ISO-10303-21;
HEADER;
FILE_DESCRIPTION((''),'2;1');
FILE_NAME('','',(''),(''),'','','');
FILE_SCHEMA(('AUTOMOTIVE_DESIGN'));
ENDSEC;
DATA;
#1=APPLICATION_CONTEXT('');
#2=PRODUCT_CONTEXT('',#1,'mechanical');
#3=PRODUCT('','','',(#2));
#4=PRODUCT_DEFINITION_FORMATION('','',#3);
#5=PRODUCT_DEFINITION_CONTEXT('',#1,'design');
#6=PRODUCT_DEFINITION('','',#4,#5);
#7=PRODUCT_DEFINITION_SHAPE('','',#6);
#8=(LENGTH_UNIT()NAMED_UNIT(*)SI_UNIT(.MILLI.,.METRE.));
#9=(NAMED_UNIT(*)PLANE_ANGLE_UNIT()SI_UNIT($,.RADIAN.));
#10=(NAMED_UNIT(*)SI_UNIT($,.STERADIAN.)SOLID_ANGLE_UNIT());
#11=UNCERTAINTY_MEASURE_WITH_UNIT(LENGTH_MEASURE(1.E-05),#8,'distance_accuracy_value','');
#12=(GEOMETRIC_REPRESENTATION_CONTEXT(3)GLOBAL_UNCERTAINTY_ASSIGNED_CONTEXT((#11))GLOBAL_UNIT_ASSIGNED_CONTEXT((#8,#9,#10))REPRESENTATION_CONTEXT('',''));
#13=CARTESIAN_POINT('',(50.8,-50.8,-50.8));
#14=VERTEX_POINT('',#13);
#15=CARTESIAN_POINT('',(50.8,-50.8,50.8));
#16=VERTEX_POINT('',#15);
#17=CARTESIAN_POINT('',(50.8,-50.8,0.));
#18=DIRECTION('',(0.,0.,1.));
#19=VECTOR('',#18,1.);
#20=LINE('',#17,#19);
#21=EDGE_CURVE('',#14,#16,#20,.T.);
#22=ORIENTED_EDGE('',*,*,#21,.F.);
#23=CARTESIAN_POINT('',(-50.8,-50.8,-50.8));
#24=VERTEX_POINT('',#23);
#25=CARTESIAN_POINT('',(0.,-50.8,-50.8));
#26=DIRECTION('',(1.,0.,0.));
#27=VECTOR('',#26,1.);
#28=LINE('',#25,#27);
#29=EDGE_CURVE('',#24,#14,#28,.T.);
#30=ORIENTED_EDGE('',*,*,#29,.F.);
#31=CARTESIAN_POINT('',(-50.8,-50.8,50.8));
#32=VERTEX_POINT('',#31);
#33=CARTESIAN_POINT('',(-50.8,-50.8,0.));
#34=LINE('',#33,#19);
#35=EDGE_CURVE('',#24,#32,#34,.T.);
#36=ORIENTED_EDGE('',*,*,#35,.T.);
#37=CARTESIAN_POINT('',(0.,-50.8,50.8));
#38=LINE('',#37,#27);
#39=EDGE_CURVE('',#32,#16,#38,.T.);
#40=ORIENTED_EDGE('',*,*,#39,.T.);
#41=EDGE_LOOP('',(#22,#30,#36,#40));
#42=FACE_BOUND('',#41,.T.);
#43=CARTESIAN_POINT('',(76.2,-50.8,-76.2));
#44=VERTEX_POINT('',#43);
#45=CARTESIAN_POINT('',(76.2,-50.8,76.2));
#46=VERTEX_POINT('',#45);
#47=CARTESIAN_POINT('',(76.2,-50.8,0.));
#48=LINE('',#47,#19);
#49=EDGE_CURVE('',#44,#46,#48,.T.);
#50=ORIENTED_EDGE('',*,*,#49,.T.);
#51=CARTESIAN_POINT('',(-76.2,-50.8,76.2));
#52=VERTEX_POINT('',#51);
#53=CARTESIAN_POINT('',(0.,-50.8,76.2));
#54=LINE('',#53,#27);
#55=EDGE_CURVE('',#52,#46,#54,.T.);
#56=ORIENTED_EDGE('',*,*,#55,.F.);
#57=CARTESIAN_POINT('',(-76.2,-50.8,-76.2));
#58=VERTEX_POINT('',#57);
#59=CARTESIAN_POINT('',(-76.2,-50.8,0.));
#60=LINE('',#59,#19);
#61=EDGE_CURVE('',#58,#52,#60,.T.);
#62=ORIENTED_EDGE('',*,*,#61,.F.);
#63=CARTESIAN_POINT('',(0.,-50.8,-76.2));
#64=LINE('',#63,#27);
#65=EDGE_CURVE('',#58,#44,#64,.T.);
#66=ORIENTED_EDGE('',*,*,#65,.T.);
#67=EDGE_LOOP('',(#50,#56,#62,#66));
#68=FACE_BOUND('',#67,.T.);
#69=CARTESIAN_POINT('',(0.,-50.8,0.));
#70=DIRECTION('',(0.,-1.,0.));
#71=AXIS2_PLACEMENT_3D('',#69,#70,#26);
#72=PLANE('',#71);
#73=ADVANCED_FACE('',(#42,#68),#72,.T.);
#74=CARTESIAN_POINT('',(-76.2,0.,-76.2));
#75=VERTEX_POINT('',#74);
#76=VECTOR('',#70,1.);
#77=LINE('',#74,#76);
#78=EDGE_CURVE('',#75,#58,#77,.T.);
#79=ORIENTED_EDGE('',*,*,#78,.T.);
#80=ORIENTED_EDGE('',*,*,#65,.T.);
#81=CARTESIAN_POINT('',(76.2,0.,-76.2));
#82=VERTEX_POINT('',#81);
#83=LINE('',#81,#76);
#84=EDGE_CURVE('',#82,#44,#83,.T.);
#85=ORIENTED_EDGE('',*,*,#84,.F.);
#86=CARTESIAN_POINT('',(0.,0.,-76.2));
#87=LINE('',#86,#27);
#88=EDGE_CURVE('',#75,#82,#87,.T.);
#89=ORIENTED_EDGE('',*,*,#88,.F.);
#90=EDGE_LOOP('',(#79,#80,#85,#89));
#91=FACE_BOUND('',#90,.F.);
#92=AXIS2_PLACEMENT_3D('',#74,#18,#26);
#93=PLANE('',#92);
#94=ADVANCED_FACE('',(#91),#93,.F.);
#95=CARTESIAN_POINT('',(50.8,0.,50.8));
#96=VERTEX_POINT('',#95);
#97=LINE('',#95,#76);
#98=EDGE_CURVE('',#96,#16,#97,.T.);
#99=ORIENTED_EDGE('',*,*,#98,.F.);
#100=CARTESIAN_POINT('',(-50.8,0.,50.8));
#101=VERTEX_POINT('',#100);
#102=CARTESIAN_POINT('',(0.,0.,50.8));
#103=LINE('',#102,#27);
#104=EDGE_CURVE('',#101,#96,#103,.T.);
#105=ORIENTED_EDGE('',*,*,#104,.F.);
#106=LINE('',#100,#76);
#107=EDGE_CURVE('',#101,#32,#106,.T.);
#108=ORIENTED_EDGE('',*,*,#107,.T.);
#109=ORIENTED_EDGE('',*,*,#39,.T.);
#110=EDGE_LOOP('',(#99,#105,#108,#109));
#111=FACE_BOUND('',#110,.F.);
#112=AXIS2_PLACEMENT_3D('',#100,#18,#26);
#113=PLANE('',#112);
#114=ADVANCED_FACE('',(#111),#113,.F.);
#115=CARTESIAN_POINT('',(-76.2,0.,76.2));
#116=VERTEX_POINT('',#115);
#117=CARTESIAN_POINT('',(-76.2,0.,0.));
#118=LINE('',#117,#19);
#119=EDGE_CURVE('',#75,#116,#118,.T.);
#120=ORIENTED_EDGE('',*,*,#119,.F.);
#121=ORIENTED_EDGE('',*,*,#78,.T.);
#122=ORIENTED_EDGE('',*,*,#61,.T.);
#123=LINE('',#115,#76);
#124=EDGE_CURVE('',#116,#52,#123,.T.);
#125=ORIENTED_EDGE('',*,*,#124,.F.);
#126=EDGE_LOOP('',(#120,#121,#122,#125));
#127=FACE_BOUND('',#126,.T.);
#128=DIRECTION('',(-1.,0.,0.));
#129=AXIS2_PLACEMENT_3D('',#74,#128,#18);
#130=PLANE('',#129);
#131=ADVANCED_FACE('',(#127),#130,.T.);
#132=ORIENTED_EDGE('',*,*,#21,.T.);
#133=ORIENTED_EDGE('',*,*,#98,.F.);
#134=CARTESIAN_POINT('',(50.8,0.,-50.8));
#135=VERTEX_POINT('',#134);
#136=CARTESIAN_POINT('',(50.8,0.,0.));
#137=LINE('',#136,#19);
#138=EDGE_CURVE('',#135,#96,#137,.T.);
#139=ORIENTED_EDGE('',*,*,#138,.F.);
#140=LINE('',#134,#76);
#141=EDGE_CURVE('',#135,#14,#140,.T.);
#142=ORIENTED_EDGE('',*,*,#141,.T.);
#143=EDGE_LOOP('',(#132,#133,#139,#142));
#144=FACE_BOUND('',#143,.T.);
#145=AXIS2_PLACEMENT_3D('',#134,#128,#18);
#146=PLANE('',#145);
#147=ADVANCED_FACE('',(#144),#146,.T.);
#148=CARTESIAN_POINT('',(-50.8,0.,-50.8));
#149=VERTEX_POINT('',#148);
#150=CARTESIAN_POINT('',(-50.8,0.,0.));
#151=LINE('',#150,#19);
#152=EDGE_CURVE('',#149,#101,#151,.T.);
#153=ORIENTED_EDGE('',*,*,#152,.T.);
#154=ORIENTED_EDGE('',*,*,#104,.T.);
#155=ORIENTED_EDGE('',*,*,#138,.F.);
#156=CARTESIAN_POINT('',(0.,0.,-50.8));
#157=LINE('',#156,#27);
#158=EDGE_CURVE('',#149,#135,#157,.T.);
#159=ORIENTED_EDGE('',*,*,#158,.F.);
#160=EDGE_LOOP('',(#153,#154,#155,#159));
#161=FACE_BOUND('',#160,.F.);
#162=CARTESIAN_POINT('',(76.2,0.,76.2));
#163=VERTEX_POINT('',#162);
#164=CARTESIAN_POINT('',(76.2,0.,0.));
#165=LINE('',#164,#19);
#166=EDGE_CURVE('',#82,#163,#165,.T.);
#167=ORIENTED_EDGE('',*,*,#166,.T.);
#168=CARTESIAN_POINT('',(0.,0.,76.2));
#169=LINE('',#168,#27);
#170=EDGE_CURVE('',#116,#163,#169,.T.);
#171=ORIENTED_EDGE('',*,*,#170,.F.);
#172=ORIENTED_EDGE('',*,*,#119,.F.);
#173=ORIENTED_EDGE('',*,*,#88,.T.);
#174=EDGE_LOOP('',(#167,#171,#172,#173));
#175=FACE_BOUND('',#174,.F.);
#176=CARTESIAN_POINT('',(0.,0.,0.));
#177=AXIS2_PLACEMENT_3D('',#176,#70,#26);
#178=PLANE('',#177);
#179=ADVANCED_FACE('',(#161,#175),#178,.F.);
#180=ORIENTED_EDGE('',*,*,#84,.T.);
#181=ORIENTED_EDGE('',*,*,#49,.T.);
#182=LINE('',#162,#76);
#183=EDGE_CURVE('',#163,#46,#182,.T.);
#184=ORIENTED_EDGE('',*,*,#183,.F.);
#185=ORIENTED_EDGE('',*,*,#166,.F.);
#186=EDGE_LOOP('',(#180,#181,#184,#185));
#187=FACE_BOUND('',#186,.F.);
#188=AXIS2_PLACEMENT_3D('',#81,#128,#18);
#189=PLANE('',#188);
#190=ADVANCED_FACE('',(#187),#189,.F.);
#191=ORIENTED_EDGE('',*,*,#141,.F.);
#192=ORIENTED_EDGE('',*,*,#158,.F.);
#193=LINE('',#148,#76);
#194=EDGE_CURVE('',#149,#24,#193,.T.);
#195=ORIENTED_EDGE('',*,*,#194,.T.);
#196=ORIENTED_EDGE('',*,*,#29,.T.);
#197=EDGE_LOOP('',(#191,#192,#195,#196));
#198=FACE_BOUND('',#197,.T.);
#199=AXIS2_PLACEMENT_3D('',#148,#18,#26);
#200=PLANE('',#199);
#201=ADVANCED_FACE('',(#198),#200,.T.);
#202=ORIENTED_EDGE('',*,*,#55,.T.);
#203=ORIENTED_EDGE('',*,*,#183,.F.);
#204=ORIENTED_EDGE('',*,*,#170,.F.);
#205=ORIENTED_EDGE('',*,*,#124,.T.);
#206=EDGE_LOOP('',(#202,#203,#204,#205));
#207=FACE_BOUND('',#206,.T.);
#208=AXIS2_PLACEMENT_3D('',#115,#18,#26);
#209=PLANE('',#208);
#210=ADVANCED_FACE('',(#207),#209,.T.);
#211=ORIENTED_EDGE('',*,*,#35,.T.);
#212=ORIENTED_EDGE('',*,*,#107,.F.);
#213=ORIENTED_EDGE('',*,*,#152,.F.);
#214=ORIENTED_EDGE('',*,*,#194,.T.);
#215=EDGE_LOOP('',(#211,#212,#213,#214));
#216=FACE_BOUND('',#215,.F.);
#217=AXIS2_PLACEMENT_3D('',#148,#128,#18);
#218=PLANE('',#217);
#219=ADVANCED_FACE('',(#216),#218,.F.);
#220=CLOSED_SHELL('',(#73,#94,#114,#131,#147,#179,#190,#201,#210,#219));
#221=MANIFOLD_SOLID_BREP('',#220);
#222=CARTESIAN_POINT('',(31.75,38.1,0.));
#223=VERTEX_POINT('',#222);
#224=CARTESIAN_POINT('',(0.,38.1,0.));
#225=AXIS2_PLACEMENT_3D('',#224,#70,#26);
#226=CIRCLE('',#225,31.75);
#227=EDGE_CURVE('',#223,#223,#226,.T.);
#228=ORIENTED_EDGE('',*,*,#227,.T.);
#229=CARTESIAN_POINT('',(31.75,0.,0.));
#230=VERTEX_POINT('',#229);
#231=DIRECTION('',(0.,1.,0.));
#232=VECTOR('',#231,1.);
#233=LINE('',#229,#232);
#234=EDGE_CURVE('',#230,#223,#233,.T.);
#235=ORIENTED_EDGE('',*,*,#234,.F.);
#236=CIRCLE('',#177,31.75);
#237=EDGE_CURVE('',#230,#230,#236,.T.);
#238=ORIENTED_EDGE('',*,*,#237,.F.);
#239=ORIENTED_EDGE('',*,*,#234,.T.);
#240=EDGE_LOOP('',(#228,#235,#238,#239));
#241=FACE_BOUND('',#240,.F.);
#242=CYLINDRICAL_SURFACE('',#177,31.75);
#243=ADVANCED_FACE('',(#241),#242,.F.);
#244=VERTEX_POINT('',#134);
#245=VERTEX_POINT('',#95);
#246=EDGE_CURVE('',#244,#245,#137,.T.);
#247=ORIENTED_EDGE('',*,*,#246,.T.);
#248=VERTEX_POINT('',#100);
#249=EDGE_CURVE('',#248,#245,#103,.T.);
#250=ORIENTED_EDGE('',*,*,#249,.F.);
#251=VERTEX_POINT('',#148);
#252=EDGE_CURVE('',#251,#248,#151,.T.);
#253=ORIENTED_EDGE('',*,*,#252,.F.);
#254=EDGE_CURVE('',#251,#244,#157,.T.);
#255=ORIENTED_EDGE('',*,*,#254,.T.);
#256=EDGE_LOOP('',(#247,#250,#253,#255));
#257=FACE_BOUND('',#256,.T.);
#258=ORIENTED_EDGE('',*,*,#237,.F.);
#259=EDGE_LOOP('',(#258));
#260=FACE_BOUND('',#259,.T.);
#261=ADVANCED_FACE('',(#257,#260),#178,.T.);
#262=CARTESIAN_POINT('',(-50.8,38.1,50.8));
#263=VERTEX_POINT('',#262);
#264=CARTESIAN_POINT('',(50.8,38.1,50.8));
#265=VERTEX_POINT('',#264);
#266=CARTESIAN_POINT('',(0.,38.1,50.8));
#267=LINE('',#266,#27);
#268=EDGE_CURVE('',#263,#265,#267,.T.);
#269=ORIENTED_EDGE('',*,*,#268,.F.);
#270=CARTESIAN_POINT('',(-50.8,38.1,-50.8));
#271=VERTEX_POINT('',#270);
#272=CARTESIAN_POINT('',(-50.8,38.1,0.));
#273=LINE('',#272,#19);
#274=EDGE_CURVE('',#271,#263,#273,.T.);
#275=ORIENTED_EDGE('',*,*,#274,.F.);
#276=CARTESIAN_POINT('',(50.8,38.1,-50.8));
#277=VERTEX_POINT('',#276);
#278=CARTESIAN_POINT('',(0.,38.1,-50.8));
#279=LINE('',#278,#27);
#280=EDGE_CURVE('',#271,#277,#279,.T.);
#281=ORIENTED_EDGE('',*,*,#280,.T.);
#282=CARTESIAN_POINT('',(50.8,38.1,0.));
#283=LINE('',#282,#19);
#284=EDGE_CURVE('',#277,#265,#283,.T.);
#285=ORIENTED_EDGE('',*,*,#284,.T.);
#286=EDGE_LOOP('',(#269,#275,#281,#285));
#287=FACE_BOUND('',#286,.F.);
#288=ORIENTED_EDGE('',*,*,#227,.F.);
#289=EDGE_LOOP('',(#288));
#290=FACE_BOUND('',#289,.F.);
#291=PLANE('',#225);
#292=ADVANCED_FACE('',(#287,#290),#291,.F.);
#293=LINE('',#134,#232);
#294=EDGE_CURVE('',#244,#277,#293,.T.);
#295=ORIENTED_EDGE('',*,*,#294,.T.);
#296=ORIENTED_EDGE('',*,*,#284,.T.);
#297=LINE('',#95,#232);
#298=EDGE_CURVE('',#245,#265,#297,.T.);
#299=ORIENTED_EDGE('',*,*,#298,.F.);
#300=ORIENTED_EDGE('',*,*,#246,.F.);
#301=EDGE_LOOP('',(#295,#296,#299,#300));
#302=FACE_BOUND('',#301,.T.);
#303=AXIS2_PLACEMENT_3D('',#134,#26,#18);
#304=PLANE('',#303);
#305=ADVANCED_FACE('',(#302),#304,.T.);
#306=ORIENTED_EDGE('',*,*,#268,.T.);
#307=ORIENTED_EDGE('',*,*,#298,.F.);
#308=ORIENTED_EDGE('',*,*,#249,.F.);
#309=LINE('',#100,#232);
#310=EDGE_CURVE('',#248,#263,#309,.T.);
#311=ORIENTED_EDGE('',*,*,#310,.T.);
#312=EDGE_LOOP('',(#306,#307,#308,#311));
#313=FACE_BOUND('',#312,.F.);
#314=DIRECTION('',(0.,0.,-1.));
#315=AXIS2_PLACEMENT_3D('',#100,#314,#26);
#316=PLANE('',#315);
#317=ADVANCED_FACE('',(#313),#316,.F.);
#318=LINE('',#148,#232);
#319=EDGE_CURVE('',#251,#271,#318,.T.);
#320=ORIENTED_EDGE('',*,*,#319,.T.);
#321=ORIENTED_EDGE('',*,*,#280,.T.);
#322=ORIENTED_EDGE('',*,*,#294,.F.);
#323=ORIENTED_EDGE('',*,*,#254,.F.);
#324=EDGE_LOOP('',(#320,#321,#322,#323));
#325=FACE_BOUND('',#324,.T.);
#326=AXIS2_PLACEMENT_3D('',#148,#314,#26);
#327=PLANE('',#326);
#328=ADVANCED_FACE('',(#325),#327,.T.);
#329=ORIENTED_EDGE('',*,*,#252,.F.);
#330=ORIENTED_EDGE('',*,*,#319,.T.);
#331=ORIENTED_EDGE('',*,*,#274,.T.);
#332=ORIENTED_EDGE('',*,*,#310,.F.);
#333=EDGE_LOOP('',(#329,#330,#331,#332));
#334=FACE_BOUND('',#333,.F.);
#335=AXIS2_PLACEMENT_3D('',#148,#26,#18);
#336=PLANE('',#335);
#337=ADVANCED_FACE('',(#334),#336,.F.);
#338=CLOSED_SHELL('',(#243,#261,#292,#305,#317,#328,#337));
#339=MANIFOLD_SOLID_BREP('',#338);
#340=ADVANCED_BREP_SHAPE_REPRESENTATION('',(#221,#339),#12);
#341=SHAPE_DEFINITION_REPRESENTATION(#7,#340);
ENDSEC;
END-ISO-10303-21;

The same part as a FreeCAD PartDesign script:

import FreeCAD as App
import Part
import Sketcher
Q = App.Units.Quantity

doc = App.newDocument("Part")
params = doc.addObject("Spreadsheet::Sheet", "Params")
for row, (alias, value) in enumerate([
    ("sketch1_width", "6 in"),
    ("sketch1_width2", "4 in"),
    ("pad1_length", "2 in"),
    ("sketch2_diameter", "2.5 in"),
    ("sketch2_width", "4 in"),
    ("pad2_length", "1.5 in"),
], start=1):
    params.set(f"A{row}", alias)
    params.set(f"B{row}", "=" + value)
    params.setAlias(f"B{row}", alias)

body = doc.addObject("PartDesign::Body", "Body")

sketch1 = body.newObject("Sketcher::SketchObject", "Sketch")
sketch1.AttachmentSupport = (doc.getObject("XZ_Plane"), [""])
sketch1.MapMode = "FlatFace"
sketch1.addGeometry([
    Part.LineSegment(App.Vector(-76, 76, 0), App.Vector(-76, -76, 0)),
    Part.LineSegment(App.Vector(-76, -76, 0), App.Vector(76, -76, 0)),
    Part.LineSegment(App.Vector(76, -76, 0), App.Vector(76, 76, 0)),
    Part.LineSegment(App.Vector(76, 76, 0), App.Vector(-76, 76, 0)),
    Part.LineSegment(App.Vector(51, -51, 0), App.Vector(-51, -51, 0)),
    Part.LineSegment(App.Vector(-51, -51, 0), App.Vector(-51, 51, 0)),
    Part.LineSegment(App.Vector(-51, 51, 0), App.Vector(51, 51, 0)),
    Part.LineSegment(App.Vector(51, 51, 0), App.Vector(51, -51, 0)),
], False)
sketch1.addConstraint([
    Sketcher.Constraint("Coincident", 0, 2, 1, 1),
    Sketcher.Constraint("Coincident", 1, 2, 2, 1),
    Sketcher.Constraint("Coincident", 2, 2, 3, 1),
    Sketcher.Constraint("Coincident", 3, 2, 0, 1),
    Sketcher.Constraint("Coincident", 4, 2, 5, 1),
    Sketcher.Constraint("Coincident", 5, 2, 6, 1),
    Sketcher.Constraint("Coincident", 6, 2, 7, 1),
    Sketcher.Constraint("Coincident", 7, 2, 4, 1),
    Sketcher.Constraint("Vertical", 0),
    Sketcher.Constraint("Horizontal", 1),
    Sketcher.Constraint("Vertical", 2),
    Sketcher.Constraint("Horizontal", 3),
    Sketcher.Constraint("Horizontal", 4),
    Sketcher.Constraint("Vertical", 5),
    Sketcher.Constraint("Horizontal", 6),
    Sketcher.Constraint("Vertical", 7),
    Sketcher.Constraint("Symmetric", 0, 2, 2, 2, -1, 1),
    Sketcher.Constraint("Symmetric", 4, 2, 6, 2, -1, 1),
    Sketcher.Constraint("Equal", 3, 0),
    Sketcher.Constraint("Equal", 6, 5),
    Sketcher.Constraint("DistanceX", 1, 1, 1, 2, Q("6 in")),
    Sketcher.Constraint("DistanceX", 4, 2, 4, 1, Q("4 in")),
])
sketch1.setExpression("Constraints[20]", "Params.sketch1_width")
sketch1.setExpression("Constraints[21]", "Params.sketch1_width2")
pad1 = body.newObject("PartDesign::Pad", "Pad")
pad1.Profile = sketch1
pad1.setExpression("Length", "Params.pad1_length")
body2 = doc.addObject("PartDesign::Body", "Body001")

sketch2 = body2.newObject("Sketcher::SketchObject", "Sketch001")
sketch2.AttachmentSupport = (doc.getObject("XZ_Plane001"), [""])
sketch2.MapMode = "FlatFace"
sketch2.addGeometry([
    Part.LineSegment(App.Vector(-51, 51, 0), App.Vector(-51, -51, 0)),
    Part.LineSegment(App.Vector(-51, -51, 0), App.Vector(51, -51, 0)),
    Part.LineSegment(App.Vector(51, -51, 0), App.Vector(51, 51, 0)),
    Part.LineSegment(App.Vector(51, 51, 0), App.Vector(-51, 51, 0)),
    Part.Circle(App.Vector(0, 0, 0), App.Vector(0, 0, 1), 32),
], False)
sketch2.addConstraint([
    Sketcher.Constraint("Coincident", 0, 2, 1, 1),
    Sketcher.Constraint("Coincident", 1, 2, 2, 1),
    Sketcher.Constraint("Coincident", 2, 2, 3, 1),
    Sketcher.Constraint("Coincident", 3, 2, 0, 1),
    Sketcher.Constraint("Vertical", 0),
    Sketcher.Constraint("Horizontal", 1),
    Sketcher.Constraint("Vertical", 2),
    Sketcher.Constraint("Horizontal", 3),
    Sketcher.Constraint("Coincident", 4, 3, -1, 1),
    Sketcher.Constraint("Symmetric", 0, 2, 2, 2, -1, 1),
    Sketcher.Constraint("Equal", 3, 0),
    Sketcher.Constraint("Diameter", 4, Q("2.5 in")),
    Sketcher.Constraint("DistanceX", 1, 1, 1, 2, Q("4 in")),
])
sketch2.setExpression("Constraints[11]", "Params.sketch2_diameter")
sketch2.setExpression("Constraints[12]", "Params.sketch2_width")
pad2 = body2.newObject("PartDesign::Pad", "Pad001")
pad2.Profile = sketch2
pad2.setExpression("Length", "Params.pad2_length")
pad2.Reversed = True

doc.recompute()
